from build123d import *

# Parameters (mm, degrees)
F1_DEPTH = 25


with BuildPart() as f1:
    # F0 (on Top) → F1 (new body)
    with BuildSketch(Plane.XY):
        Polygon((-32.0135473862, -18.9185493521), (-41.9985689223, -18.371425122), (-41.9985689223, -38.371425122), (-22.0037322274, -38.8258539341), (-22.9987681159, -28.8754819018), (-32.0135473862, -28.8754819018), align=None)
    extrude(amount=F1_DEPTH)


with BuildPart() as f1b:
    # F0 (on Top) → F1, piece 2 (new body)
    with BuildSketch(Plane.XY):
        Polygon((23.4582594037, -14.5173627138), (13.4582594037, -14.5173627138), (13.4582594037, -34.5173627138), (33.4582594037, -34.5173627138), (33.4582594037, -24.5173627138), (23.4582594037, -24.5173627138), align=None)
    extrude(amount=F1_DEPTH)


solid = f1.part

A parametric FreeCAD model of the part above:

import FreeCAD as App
import Part
import Sketcher

V = App.Vector
Q = App.Units.Quantity

doc = App.newDocument("Part")
body = doc.addObject("PartDesign::Body", "Body")

sketch1 = body.newObject("Sketcher::SketchObject", "Sketch")
sketch1.AttachmentSupport = (doc.getObject("XY_Plane"), [""])
sketch1.MapMode = "FlatFace"
sketch1.addGeometry([
    Part.LineSegment(V(-32.013547, -18.918549, 0), V(-41.998569, -18.371425, 0)),
    Part.LineSegment(V(-41.998569, -18.371425, 0), V(-41.998569, -38.371425, 0)),
    Part.LineSegment(V(-41.998569, -38.371425, 0), V(-22.003732, -38.825854, 0)),
    Part.LineSegment(V(-22.003732, -38.825854, 0), V(-22.998768, -28.875482, 0)),
    Part.LineSegment(V(-22.998768, -28.875482, 0), V(-32.013547, -28.875482, 0)),
    Part.LineSegment(V(-32.013547, -28.875482, 0), V(-32.013547, -18.918549, 0)),
], False)
sketch1.addConstraint([
    Sketcher.Constraint("Coincident", 0, 2, 1, 1),
    Sketcher.Constraint("Coincident", 1, 2, 2, 1),
    Sketcher.Constraint("Coincident", 2, 2, 3, 1),
    Sketcher.Constraint("Coincident", 3, 2, 4, 1),
    Sketcher.Constraint("Coincident", 4, 2, 5, 1),
    Sketcher.Constraint("Coincident", 5, 2, 0, 1),
    Sketcher.Constraint("Vertical", 1),
    Sketcher.Constraint("Horizontal", 4),
    Sketcher.Constraint("Vertical", 5),
    Sketcher.Constraint("Equal", 0, 3),
    Sketcher.Constraint("DistanceY", 1, 2, 1, 1, Q("20 mm")),
    Sketcher.Constraint("Distance", 0, Q("10 mm")),
    Sketcher.Constraint("Distance", 2, Q("20 mm")),
    Sketcher.Constraint("DistanceX", 4, 2, 4, 1, Q("9.014779 mm")),
    Sketcher.Constraint("DistanceX", 1, 2, 3, 2, Q("18.999801 mm")),
    Sketcher.Constraint("DistanceY", 5, 1, 5, 2, Q("9.956933 mm")),
    Sketcher.Constraint("DistanceX", 0, 2, -1, 1, Q("41.998569 mm")),
    Sketcher.Constraint("DistanceY", 3, 2, -1, 1, Q("28.875482 mm")),
])
pad1 = body.newObject("PartDesign::Pad", "Pad")
pad1.Profile = sketch1
pad1.Length = 25
body2 = doc.addObject("PartDesign::Body", "Body001")

sketch2 = body2.newObject("Sketcher::SketchObject", "Sketch001")
sketch2.AttachmentSupport = (doc.getObject("XY_Plane001"), [""])
sketch2.MapMode = "FlatFace"
sketch2.addGeometry([
    Part.LineSegment(V(23.458259, -14.517363, 0), V(13.458259, -14.517363, 0)),
    Part.LineSegment(V(13.458259, -14.517363, 0), V(13.458259, -34.517363, 0)),
    Part.LineSegment(V(13.458259, -34.517363, 0), V(33.458259, -34.517363, 0)),
    Part.LineSegment(V(33.458259, -34.517363, 0), V(33.458259, -24.517363, 0)),
    Part.LineSegment(V(33.458259, -24.517363, 0), V(23.458259, -24.517363, 0)),
    Part.LineSegment(V(23.458259, -24.517363, 0), V(23.458259, -14.517363, 0)),
], False)
sketch2.addConstraint([
    Sketcher.Constraint("Coincident", 0, 2, 1, 1),
    Sketcher.Constraint("Coincident", 1, 2, 2, 1),
    Sketcher.Constraint("Coincident", 2, 2, 3, 1),
    Sketcher.Constraint("Coincident", 3, 2, 4, 1),
    Sketcher.Constraint("Coincident", 4, 2, 5, 1),
    Sketcher.Constraint("Coincident", 5, 2, 0, 1),
    Sketcher.Constraint("Horizontal", 0),
    Sketcher.Constraint("Vertical", 1),
    Sketcher.Constraint("Horizontal", 2),
    Sketcher.Constraint("Vertical", 3),
    Sketcher.Constraint("Horizontal", 4),
    Sketcher.Constraint("Vertical", 5),
    Sketcher.Constraint("Equal", 0, 4),
    Sketcher.Constraint("Equal", 2, 1),
    Sketcher.Constraint("Equal", 4, 3),
    Sketcher.Constraint("DistanceX", 0, 2, 0, 1, Q("10 mm")),
    Sketcher.Constraint("DistanceX", -1, 1, 0, 2, Q("13.458259 mm")),
    Sketcher.Constraint("DistanceY", 0, 2, -1, 1, Q("14.517363 mm")),
])
pad2 = body2.newObject("PartDesign::Pad", "Pad001")
pad2.Profile = sketch2
pad2.Length = 25
body2.Visibility = False

doc.recompute()
